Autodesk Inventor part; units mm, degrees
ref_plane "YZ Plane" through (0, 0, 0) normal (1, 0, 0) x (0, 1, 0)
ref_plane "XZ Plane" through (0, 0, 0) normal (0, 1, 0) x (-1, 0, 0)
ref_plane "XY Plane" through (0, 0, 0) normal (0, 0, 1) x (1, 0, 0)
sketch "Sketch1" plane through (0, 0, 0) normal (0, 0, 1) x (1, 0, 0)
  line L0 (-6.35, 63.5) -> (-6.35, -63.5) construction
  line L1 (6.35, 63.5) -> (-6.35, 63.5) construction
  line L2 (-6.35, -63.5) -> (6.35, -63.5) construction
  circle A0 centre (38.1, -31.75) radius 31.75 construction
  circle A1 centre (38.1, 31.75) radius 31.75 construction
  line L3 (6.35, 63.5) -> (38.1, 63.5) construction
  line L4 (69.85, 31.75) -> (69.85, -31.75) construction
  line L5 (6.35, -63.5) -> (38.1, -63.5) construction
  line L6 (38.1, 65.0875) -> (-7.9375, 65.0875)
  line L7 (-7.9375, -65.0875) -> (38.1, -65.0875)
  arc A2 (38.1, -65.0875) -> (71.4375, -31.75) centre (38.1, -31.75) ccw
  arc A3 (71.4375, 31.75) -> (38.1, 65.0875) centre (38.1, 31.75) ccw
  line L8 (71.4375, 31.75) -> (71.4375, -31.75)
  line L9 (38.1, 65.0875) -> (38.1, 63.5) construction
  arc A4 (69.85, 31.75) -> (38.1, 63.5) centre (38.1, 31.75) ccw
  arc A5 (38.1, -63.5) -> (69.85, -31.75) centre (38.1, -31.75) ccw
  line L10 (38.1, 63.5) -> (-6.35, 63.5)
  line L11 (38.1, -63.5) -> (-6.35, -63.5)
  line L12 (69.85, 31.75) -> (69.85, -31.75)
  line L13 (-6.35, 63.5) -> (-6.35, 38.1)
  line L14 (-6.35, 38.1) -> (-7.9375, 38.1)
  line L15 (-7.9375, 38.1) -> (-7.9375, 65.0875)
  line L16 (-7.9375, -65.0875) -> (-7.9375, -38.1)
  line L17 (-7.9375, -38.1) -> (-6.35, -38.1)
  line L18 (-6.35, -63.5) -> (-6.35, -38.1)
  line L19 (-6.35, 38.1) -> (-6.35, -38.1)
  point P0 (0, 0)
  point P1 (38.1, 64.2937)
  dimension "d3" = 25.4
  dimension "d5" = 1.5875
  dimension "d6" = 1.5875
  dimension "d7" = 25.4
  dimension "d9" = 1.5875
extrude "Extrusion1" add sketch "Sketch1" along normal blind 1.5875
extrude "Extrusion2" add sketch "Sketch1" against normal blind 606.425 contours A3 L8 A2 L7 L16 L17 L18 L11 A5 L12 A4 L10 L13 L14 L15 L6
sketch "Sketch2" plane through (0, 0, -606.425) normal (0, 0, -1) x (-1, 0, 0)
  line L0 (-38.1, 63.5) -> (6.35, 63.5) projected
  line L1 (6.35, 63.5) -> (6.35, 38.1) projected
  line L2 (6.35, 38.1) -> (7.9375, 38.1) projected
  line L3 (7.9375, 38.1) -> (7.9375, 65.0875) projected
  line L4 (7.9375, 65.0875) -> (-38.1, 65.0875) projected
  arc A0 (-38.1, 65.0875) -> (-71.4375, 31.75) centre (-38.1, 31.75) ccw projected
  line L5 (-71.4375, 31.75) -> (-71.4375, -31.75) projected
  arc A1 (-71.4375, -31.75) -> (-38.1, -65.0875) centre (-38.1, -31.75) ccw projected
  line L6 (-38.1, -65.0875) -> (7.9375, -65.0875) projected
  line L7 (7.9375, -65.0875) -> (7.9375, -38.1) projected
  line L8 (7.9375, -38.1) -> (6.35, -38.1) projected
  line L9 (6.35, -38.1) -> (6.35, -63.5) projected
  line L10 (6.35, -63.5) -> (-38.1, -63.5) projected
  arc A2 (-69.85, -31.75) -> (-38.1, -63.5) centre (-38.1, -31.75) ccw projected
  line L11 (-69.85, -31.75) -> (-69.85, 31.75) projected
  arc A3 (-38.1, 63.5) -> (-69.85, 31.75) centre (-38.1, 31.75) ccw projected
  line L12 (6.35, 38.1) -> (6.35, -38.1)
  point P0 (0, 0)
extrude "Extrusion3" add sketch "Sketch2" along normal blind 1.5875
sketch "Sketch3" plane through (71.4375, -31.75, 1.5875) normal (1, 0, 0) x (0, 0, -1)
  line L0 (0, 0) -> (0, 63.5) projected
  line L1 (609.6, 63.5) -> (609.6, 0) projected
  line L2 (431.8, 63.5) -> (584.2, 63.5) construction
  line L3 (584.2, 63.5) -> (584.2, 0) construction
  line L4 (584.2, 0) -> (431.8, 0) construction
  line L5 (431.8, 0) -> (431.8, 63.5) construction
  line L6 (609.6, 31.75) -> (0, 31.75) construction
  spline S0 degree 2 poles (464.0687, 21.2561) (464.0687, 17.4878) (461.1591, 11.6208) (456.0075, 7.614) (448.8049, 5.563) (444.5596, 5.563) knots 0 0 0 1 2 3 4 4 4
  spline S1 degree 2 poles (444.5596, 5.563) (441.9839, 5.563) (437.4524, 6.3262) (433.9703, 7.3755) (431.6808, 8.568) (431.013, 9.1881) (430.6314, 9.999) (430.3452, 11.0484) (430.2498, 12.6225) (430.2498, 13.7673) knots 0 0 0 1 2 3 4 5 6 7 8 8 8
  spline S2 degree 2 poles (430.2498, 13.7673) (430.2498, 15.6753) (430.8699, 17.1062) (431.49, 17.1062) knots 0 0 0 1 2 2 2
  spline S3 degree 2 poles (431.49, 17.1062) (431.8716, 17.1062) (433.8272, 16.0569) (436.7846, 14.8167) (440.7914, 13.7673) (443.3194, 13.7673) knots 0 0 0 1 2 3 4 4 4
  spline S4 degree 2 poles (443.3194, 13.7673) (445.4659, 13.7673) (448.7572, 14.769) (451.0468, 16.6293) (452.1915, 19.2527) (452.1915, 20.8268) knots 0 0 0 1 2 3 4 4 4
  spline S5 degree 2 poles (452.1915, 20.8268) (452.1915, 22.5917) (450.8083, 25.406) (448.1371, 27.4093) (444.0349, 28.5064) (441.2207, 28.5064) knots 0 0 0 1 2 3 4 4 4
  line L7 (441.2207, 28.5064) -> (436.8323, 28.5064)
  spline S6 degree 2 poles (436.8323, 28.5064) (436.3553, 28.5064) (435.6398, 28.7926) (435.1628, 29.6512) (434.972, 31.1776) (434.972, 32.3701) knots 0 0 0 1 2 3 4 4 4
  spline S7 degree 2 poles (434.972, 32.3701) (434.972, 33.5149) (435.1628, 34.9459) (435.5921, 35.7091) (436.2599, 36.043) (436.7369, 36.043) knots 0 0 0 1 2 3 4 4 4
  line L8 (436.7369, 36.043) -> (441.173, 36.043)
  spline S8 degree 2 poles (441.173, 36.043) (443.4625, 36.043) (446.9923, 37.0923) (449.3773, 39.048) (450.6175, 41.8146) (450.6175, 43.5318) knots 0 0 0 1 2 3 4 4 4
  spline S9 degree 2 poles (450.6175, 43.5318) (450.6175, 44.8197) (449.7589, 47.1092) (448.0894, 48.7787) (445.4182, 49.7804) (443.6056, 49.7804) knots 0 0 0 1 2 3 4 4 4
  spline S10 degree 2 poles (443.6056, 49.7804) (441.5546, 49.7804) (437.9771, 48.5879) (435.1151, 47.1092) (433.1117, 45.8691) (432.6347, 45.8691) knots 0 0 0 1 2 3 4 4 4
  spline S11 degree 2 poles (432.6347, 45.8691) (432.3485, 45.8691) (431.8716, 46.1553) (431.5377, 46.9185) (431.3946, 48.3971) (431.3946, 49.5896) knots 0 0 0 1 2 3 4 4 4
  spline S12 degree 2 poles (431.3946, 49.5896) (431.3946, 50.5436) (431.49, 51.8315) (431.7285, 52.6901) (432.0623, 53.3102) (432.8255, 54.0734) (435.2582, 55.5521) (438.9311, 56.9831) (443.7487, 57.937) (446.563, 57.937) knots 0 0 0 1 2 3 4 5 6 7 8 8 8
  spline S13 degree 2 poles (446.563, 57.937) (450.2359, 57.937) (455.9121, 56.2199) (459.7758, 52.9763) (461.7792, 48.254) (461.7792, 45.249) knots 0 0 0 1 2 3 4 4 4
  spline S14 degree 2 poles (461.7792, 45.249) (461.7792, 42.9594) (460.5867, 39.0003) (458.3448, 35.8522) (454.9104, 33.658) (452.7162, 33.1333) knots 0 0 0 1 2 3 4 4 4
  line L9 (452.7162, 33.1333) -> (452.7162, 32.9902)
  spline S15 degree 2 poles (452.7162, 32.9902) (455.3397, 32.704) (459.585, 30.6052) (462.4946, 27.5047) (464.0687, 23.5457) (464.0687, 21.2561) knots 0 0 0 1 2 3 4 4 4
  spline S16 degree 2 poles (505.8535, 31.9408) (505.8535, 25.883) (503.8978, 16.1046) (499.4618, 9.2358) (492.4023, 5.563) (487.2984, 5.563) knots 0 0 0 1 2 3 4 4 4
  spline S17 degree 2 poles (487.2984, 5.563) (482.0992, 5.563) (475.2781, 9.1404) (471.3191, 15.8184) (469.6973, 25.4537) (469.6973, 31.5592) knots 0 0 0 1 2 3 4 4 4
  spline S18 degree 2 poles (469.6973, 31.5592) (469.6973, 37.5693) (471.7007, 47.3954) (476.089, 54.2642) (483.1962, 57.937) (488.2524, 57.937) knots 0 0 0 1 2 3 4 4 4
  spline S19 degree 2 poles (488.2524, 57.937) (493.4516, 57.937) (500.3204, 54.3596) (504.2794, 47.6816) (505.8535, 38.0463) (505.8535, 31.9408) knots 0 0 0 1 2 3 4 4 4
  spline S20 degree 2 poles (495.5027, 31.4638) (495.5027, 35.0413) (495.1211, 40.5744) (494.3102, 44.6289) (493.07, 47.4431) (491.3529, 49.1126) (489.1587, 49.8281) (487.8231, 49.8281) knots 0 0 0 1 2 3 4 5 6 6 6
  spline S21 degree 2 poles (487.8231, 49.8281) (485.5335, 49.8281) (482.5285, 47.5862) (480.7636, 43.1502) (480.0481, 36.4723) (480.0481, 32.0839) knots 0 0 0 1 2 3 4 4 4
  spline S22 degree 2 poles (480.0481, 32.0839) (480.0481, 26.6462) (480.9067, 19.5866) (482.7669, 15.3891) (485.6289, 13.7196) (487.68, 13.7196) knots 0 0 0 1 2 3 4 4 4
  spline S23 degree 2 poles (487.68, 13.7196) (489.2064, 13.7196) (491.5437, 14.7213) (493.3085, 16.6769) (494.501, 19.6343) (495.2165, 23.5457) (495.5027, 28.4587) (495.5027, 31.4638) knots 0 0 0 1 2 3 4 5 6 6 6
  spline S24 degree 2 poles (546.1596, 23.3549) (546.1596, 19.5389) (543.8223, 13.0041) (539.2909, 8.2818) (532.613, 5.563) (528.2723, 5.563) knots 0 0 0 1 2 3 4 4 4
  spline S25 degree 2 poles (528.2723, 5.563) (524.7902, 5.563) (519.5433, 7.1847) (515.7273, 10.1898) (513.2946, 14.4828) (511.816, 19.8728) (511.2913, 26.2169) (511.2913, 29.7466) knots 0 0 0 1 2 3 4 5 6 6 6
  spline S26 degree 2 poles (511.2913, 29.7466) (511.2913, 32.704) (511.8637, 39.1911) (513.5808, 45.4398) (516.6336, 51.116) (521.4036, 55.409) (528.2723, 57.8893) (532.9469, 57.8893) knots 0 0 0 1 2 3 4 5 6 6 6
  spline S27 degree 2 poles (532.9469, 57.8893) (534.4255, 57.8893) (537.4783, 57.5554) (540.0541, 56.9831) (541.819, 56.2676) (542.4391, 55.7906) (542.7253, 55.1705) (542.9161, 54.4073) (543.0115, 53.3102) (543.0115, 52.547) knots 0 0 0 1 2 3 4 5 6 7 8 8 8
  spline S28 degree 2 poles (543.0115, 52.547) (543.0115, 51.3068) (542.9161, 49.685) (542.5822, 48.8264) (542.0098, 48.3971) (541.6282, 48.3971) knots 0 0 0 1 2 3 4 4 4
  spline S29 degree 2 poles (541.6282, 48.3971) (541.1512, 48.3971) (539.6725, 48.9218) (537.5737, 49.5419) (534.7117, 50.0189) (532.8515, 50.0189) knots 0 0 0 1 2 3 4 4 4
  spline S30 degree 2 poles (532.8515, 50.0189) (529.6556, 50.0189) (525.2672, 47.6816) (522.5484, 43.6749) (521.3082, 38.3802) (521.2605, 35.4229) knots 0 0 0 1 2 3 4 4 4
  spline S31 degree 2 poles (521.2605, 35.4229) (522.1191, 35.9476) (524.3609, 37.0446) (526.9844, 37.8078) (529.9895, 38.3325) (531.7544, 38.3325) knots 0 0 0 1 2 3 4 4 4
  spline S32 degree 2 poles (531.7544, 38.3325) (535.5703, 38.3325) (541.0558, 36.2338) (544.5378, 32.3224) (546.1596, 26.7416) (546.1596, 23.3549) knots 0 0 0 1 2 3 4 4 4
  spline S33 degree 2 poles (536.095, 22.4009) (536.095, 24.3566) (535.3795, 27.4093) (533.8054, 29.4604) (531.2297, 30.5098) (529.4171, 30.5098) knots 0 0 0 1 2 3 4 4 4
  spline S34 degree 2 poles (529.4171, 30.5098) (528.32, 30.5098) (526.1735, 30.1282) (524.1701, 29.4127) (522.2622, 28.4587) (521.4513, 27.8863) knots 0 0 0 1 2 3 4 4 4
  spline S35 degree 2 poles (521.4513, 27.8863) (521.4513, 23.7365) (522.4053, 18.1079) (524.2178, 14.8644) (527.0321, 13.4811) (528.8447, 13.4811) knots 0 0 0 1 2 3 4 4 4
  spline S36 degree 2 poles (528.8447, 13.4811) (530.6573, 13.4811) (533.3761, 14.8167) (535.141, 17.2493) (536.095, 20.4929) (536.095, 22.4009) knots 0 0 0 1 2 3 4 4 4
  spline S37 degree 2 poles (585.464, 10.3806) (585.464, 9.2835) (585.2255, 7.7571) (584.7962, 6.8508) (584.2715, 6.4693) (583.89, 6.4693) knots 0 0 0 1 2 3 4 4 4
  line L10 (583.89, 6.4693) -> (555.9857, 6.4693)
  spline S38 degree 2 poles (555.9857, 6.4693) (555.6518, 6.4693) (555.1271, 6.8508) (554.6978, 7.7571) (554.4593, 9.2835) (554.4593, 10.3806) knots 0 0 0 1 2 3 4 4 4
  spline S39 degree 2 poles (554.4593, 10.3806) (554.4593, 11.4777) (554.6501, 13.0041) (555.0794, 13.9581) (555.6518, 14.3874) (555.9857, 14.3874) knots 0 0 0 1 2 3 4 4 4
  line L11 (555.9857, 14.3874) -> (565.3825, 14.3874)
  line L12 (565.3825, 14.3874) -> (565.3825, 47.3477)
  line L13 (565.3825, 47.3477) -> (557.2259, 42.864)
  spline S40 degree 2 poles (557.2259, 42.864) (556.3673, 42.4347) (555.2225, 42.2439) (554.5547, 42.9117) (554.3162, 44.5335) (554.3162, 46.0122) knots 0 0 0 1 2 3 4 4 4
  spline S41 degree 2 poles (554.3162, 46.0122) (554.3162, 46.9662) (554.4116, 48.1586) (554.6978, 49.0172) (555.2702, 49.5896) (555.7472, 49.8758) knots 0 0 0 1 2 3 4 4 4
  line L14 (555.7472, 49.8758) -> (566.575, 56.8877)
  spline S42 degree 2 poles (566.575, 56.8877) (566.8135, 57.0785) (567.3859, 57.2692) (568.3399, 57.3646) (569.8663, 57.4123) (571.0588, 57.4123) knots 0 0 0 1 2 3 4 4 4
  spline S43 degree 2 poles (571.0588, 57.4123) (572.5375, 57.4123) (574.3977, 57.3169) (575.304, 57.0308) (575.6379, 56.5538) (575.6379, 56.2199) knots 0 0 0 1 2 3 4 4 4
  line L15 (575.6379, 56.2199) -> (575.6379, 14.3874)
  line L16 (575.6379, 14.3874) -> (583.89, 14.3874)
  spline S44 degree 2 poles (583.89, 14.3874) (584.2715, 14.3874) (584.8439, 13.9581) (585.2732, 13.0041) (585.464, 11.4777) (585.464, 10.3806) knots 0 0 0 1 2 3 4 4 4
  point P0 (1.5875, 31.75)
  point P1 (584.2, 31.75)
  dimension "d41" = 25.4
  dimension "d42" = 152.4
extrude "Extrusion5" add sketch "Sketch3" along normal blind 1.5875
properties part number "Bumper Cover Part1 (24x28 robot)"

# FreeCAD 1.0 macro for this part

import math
import FreeCAD as App
import Part
import Sketcher
Q = App.Units.Quantity

doc = App.newDocument("Part")
body = doc.addObject("PartDesign::Body", "Body")

sketch1 = body.newObject("Sketcher::SketchObject", "Sketch")
sketch1.AttachmentSupport = (doc.getObject("XY_Plane"), [""])
sketch1.MapMode = "FlatFace"
sketch1.addGeometry(Part.ArcOfCircle(Part.Circle(App.Vector(38.1, 31.75, 0), App.Vector(0, 0, 1), 33.3375), math.radians(0), math.radians(90)), False)
sketch1.addGeometry(Part.LineSegment(App.Vector(38.1, 65.0875, 0), App.Vector(-7.9375, 65.0875, 0)), False)
sketch1.addGeometry(Part.LineSegment(App.Vector(-7.9375, 65.0875, 0), App.Vector(-7.9375, 38.1, 0)), False)
sketch1.addGeometry(Part.LineSegment(App.Vector(-7.9375, 38.1, 0), App.Vector(-6.35, 38.1, 0)), False)
sketch1.addGeometry(Part.LineSegment(App.Vector(-6.35, 38.1, 0), App.Vector(-6.35, -38.1, 0)), False)
sketch1.addGeometry(Part.LineSegment(App.Vector(-6.35, -38.1, 0), App.Vector(-7.9375, -38.1, 0)), False)
sketch1.addGeometry(Part.LineSegment(App.Vector(-7.9375, -38.1, 0), App.Vector(-7.9375, -65.0875, 0)), False)
sketch1.addGeometry(Part.LineSegment(App.Vector(-7.9375, -65.0875, 0), App.Vector(38.1, -65.0875, 0)), False)
sketch1.addGeometry(Part.ArcOfCircle(Part.Circle(App.Vector(38.1, -31.75, 0), App.Vector(0, 0, 1), 33.3375), math.radians(-90), math.radians(0)), False)
sketch1.addGeometry(Part.LineSegment(App.Vector(71.4375, -31.75, 0), App.Vector(71.4375, 31.75, 0)), False)
sketch1.addConstraint(Sketcher.Constraint("Tangent", 0, 2, 1, 1))
sketch1.addConstraint(Sketcher.Constraint("Coincident", 1, 2, 2, 1))
sketch1.addConstraint(Sketcher.Constraint("Coincident", 2, 2, 3, 1))
sketch1.addConstraint(Sketcher.Constraint("Coincident", 3, 2, 4, 1))
sketch1.addConstraint(Sketcher.Constraint("Coincident", 4, 2, 5, 1))
sketch1.addConstraint(Sketcher.Constraint("Coincident", 5, 2, 6, 1))
sketch1.addConstraint(Sketcher.Constraint("Coincident", 6, 2, 7, 1))
sketch1.addConstraint(Sketcher.Constraint("Tangent", 7, 2, 8, 1))
sketch1.addConstraint(Sketcher.Constraint("Tangent", 8, 2, 9, 1))
sketch1.addConstraint(Sketcher.Constraint("Tangent", 9, 2, 0, 1))
sketch1.addConstraint(Sketcher.Constraint("Horizontal", 1))
sketch1.addConstraint(Sketcher.Constraint("Vertical", 2))
sketch1.addConstraint(Sketcher.Constraint("Horizontal", 3))
sketch1.addConstraint(Sketcher.Constraint("Vertical", 4))
sketch1.addConstraint(Sketcher.Constraint("Horizontal", 5))
sketch1.addConstraint(Sketcher.Constraint("Vertical", 6))
sketch1.addConstraint(Sketcher.Constraint("Horizontal", 7))
sketch1.addConstraint(Sketcher.Constraint("Vertical", 9))
sketch1.addConstraint(Sketcher.Constraint("Equal", 0, 8))
sketch1.addConstraint(Sketcher.Constraint("Symmetric", 2, 2, 5, 2, -1))
sketch1.addConstraint(Sketcher.Constraint("Equal", 2, 6))
sketch1.addConstraint(Sketcher.Constraint("DistanceX", 3, 1, 3, 2, Q("0.0625 in")))
sketch1.addConstraint(Sketcher.Constraint("DistanceY", 4, 2, 4, 1, Q("3 in")))
sketch1.addConstraint(Sketcher.Constraint("DistanceY", 9, 1, 9, 2, Q("2.5 in")))
sketch1.addConstraint(Sketcher.Constraint("Radius", 0, Q("1.3125 in")))
sketch1.addConstraint(Sketcher.Constraint("DistanceX", -1, 1, 0, 3, Q("1.5 in")))
sketch1.addConstraint(Sketcher.Constraint("DistanceX", 1, 2, 1, 1, Q("1.8125 in")))
pad1 = body.newObject("PartDesign::Pad", "Pad")
pad1.Profile = sketch1
pad1.Length = Q("0.0625 in")

sketch2 = body.newObject("Sketcher::SketchObject", "Sketch001")
sketch2.AttachmentSupport = (doc.getObject("XY_Plane"), [""])
sketch2.MapMode = "FlatFace"
sketch2.addGeometry(Part.ArcOfCircle(Part.Circle(App.Vector(38.1, 31.75, 0), App.Vector(0, 0, 1), 33.3375), math.radians(0), math.radians(90)), False)
sketch2.addGeometry(Part.LineSegment(App.Vector(38.1, 65.0875, 0), App.Vector(-7.9375, 65.0875, 0)), False)
sketch2.addGeometry(Part.LineSegment(App.Vector(-7.9375, 65.0875, 0), App.Vector(-7.9375, 38.1, 0)), False)
sketch2.addGeometry(Part.LineSegment(App.Vector(-7.9375, 38.1, 0), App.Vector(-6.35, 38.1, 0)), False)
sketch2.addGeometry(Part.LineSegment(App.Vector(-6.35, 38.1, 0), App.Vector(-6.35, 63.5, 0)), False)
sketch2.addGeometry(Part.LineSegment(App.Vector(-6.35, 63.5, 0), App.Vector(38.1, 63.5, 0)), False)
sketch2.addGeometry(Part.ArcOfCircle(Part.Circle(App.Vector(38.1, 31.75, 0), App.Vector(0, 0, 1), 31.75), math.radians(0), math.radians(90)), False)
sketch2.addGeometry(Part.LineSegment(App.Vector(69.85, 31.75, 0), App.Vector(69.85, -31.75, 0)), False)
sketch2.addGeometry(Part.ArcOfCircle(Part.Circle(App.Vector(38.1, -31.75, 0), App.Vector(0, 0, 1), 31.75), math.radians(-90), math.radians(0)), False)
sketch2.addGeometry(Part.LineSegment(App.Vector(38.1, -63.5, 0), App.Vector(-6.35, -63.5, 0)), False)
sketch2.addGeometry(Part.LineSegment(App.Vector(-6.35, -63.5, 0), App.Vector(-6.35, -38.1, 0)), False)
sketch2.addGeometry(Part.LineSegment(App.Vector(-6.35, -38.1, 0), App.Vector(-7.9375, -38.1, 0)), False)
sketch2.addGeometry(Part.LineSegment(App.Vector(-7.9375, -38.1, 0), App.Vector(-7.9375, -65.0875, 0)), False)
sketch2.addGeometry(Part.LineSegment(App.Vector(-7.9375, -65.0875, 0), App.Vector(38.1, -65.0875, 0)), False)
sketch2.addGeometry(Part.ArcOfCircle(Part.Circle(App.Vector(38.1, -31.75, 0), App.Vector(0, 0, 1), 33.3375), math.radians(-90), math.radians(0)), False)
sketch2.addGeometry(Part.LineSegment(App.Vector(71.4375, -31.75, 0), App.Vector(71.4375, 31.75, 0)), False)
sketch2.addConstraint(Sketcher.Constraint("Tangent", 0, 2, 1, 1))
sketch2.addConstraint(Sketcher.Constraint("Coincident", 1, 2, 2, 1))
sketch2.addConstraint(Sketcher.Constraint("Coincident", 2, 2, 3, 1))
sketch2.addConstraint(Sketcher.Constraint("Coincident", 3, 2, 4, 1))
sketch2.addConstraint(Sketcher.Constraint("Coincident", 4, 2, 5, 1))
sketch2.addConstraint(Sketcher.Constraint("Tangent", 5, 2, 6, 2))
sketch2.addConstraint(Sketcher.Constraint("Tangent", 6, 1, 7, 1))
sketch2.addConstraint(Sketcher.Constraint("Tangent", 7, 2, 8, 2))
sketch2.addConstraint(Sketcher.Constraint("Tangent", 8, 1, 9, 1))
sketch2.addConstraint(Sketcher.Constraint("Coincident", 9, 2, 10, 1))
sketch2.addConstraint(Sketcher.Constraint("Coincident", 10, 2, 11, 1))
sketch2.addConstraint(Sketcher.Constraint("Coincident", 11, 2, 12, 1))
sketch2.addConstraint(Sketcher.Constraint("Coincident", 12, 2, 13, 1))
sketch2.addConstraint(Sketcher.Constraint("Tangent", 13, 2, 14, 1))
sketch2.addConstraint(Sketcher.Constraint("Tangent", 14, 2, 15, 1))
sketch2.addConstraint(Sketcher.Constraint("Tangent", 15, 2, 0, 1))
sketch2.addConstraint(Sketcher.Constraint("Horizontal", 1))
sketch2.addConstraint(Sketcher.Constraint("Vertical", 2))
sketch2.addConstraint(Sketcher.Constraint("Horizontal", 3))
sketch2.addConstraint(Sketcher.Constraint("Vertical", 4))
sketch2.addConstraint(Sketcher.Constraint("Horizontal", 5))
sketch2.addConstraint(Sketcher.Constraint("Vertical", 7))
sketch2.addConstraint(Sketcher.Constraint("Horizontal", 9))
sketch2.addConstraint(Sketcher.Constraint("Vertical", 10))
sketch2.addConstraint(Sketcher.Constraint("Horizontal", 11))
sketch2.addConstraint(Sketcher.Constraint("Vertical", 12))
sketch2.addConstraint(Sketcher.Constraint("Horizontal", 13))
sketch2.addConstraint(Sketcher.Constraint("Vertical", 15))
sketch2.addConstraint(Sketcher.Constraint("Coincident", 6, 3, 0, 3))
sketch2.addConstraint(Sketcher.Constraint("Coincident", 14, 3, 8, 3))
sketch2.addConstraint(Sketcher.Constraint("Equal", 6, 8))
sketch2.addConstraint(Sketcher.Constraint("Symmetric", 4, 2, 9, 2, -1))
sketch2.addConstraint(Sketcher.Constraint("Symmetric", 2, 2, 11, 2, -1))
sketch2.addConstraint(Sketcher.Constraint("DistanceY", 4, 1, 4, 2, Q("1 in")))
sketch2.addConstraint(Sketcher.Constraint("DistanceX", 3, 1, 3, 2, Q("0.0625 in")))
sketch2.addConstraint(Sketcher.Constraint("Radius", 6, Q("1.25 in")))
sketch2.addConstraint(Sketcher.Constraint("DistanceY", 7, 2, 7, 1, Q("2.5 in")))
sketch2.addConstraint(Sketcher.Constraint("Radius", 0, Q("1.3125 in")))
sketch2.addConstraint(Sketcher.Constraint("DistanceX", 9, 2, 7, 2, Q("3 in")))
sketch2.addConstraint(Sketcher.Constraint("DistanceX", -1, 1, 0, 3, Q("1.5 in")))
pad2 = body.newObject("PartDesign::Pad", "Pad001")
pad2.Profile = sketch2
pad2.Length = Q("23.875 in")
pad2.Reversed = True

sketch3 = body.newObject("Sketcher::SketchObject", "Sketch002")
sketch3.AttachmentSupport = (doc.getObject("XY_Plane"), [""])
sketch3.MapMode = "FlatFace"
sketch3.AttachmentOffset = App.Placement(App.Vector(0, 0, -23.875 * 25.4), App.Rotation())
sketch3.addGeometry(Part.LineSegment(App.Vector(-7.9375, -38.1, 0), App.Vector(-6.35, -38.1, 0)), False)
sketch3.addGeometry(Part.LineSegment(App.Vector(-6.35, -38.1, 0), App.Vector(-6.35, 38.1, 0)), False)
sketch3.addGeometry(Part.LineSegment(App.Vector(-6.35, 38.1, 0), App.Vector(-7.9375, 38.1, 0)), False)
sketch3.addGeometry(Part.LineSegment(App.Vector(-7.9375, 38.1, 0), App.Vector(-7.9375, 65.0875, 0)), False)
sketch3.addGeometry(Part.LineSegment(App.Vector(-7.9375, 65.0875, 0), App.Vector(38.1, 65.0875, 0)), False)
sketch3.addGeometry(Part.ArcOfCircle(Part.Circle(App.Vector(38.1, 31.75, 0), App.Vector(0, 0, 1), 33.3375), math.radians(0), math.radians(90)), False)
sketch3.addGeometry(Part.LineSegment(App.Vector(71.4375, 31.75, 0), App.Vector(71.4375, -31.75, 0)), False)
sketch3.addGeometry(Part.ArcOfCircle(Part.Circle(App.Vector(38.1, -31.75, 0), App.Vector(0, 0, 1), 33.3375), math.radians(-90), math.radians(0)), False)
sketch3.addGeometry(Part.LineSegment(App.Vector(38.1, -65.0875, 0), App.Vector(-7.9375, -65.0875, 0)), False)
sketch3.addGeometry(Part.LineSegment(App.Vector(-7.9375, -65.0875, 0), App.Vector(-7.9375, -38.1, 0)), False)
sketch3.addConstraint(Sketcher.Constraint("Coincident", 0, 2, 1, 1))
sketch3.addConstraint(Sketcher.Constraint("Coincident", 1, 2, 2, 1))
sketch3.addConstraint(Sketcher.Constraint("Coincident", 2, 2, 3, 1))
sketch3.addConstraint(Sketcher.Constraint("Coincident", 3, 2, 4, 1))
sketch3.addConstraint(Sketcher.Constraint("Tangent", 4, 2, 5, 2))
sketch3.addConstraint(Sketcher.Constraint("Tangent", 5, 1, 6, 1))
sketch3.addConstraint(Sketcher.Constraint("Tangent", 6, 2, 7, 2))
sketch3.addConstraint(Sketcher.Constraint("Tangent", 7, 1, 8, 1))
sketch3.addConstraint(Sketcher.Constraint("Coincident", 8, 2, 9, 1))
sketch3.addConstraint(Sketcher.Constraint("Coincident", 9, 2, 0, 1))
sketch3.addConstraint(Sketcher.Constraint("Horizontal", 0))
sketch3.addConstraint(Sketcher.Constraint("Vertical", 1))
sketch3.addConstraint(Sketcher.Constraint("Horizontal", 2))
sketch3.addConstraint(Sketcher.Constraint("Vertical", 3))
sketch3.addConstraint(Sketcher.Constraint("Horizontal", 4))
sketch3.addConstraint(Sketcher.Constraint("Vertical", 6))
sketch3.addConstraint(Sketcher.Constraint("Horizontal", 8))
sketch3.addConstraint(Sketcher.Constraint("Vertical", 9))
sketch3.addConstraint(Sketcher.Constraint("Equal", 5, 7))
sketch3.addConstraint(Sketcher.Constraint("Symmetric", 3, 2, 8, 2, -1))
sketch3.addConstraint(Sketcher.Constraint("Equal", 3, 9))
sketch3.addConstraint(Sketcher.Constraint("DistanceY", 1, 1, 1, 2, Q("3 in")))
sketch3.addConstraint(Sketcher.Constraint("DistanceY", 6, 2, 6, 1, Q("2.5 in")))
sketch3.addConstraint(Sketcher.Constraint("Radius", 5, Q("1.3125 in")))
sketch3.addConstraint(Sketcher.Constraint("DistanceX", -1, 1, 5, 3, Q("1.5 in")))
sketch3.addConstraint(Sketcher.Constraint("DistanceX", 0, 1, 0, 2, Q("0.0625 in")))
sketch3.addConstraint(Sketcher.Constraint("DistanceX", 4, 1, 4, 2, Q("1.8125 in")))
pad3 = body.newObject("PartDesign::Pad", "Pad002")
pad3.Profile = sketch3
pad3.Length = Q("0.0625 in")
pad3.Reversed = True

sketch4 = body.newObject("Sketcher::SketchObject", "Sketch003")
sketch4.AttachmentSupport = (doc.getObject("YZ_Plane"), [""])
sketch4.MapMode = "FlatFace"
sketch4.AttachmentOffset = App.Placement(App.Vector(0, 0, 2.8125 * 25.4), App.Rotation())
sketch4.addGeometry(Part.BSplineCurve([App.Vector(-10.4939, -462.4812, 0), App.Vector(-14.2622, -462.4812, 0), App.Vector(-20.1292, -459.5716, 0), App.Vector(-24.136, -454.42, 0), App.Vector(-26.187, -447.2174, 0), App.Vector(-26.187, -442.9721, 0)], [3, 1, 1, 1, 3], [0, 1, 2, 3, 4], False, 2, [1, 1, 1, 1, 1, 1], False), False)
sketch4.addGeometry(Part.BSplineCurve([App.Vector(1.2402, -451.1287, 0), App.Vector(0.954, -453.7522, 0), App.Vector(-1.1448, -457.9975, 0), App.Vector(-4.2453, -460.9071, 0), App.Vector(-8.2043, -462.4812, 0), App.Vector(-10.4939, -462.4812, 0)], [3, 1, 1, 1, 3], [0, 1, 2, 3, 4], False, 2, [1, 1, 1, 1, 1, 1], False), False)
sketch4.addGeometry(Part.LineSegment(App.Vector(1.2402, -451.1287, 0), App.Vector(1.3833, -451.1287, 0)), False)
sketch4.addGeometry(Part.BSplineCurve([App.Vector(13.499, -460.1917, 0), App.Vector(11.2094, -460.1917, 0), App.Vector(7.2503, -458.9992, 0), App.Vector(4.1022, -456.7573, 0), App.Vector(1.908, -453.3229, 0), App.Vector(1.3833, -451.1287, 0)], [3, 1, 1, 1, 3], [0, 1, 2, 3, 4], False, 2, [1, 1, 1, 1, 1, 1], False), False)
sketch4.addGeometry(Part.BSplineCurve([App.Vector(26.187, -444.9755, 0), App.Vector(26.187, -448.6484, 0), App.Vector(24.4699, -454.3246, 0), App.Vector(21.2263, -458.1883, 0), App.Vector(16.504, -460.1917, 0), App.Vector(13.499, -460.1917, 0)], [3, 1, 1, 1, 3], [0, 1, 2, 3, 4], False, 2, [1, 1, 1, 1, 1, 1], False), False)
sketch4.addGeometry(Part.BSplineCurve([App.Vector(17.8396, -429.8071, 0), App.Vector(18.7936, -429.8071, 0), App.Vector(20.0815, -429.9025, 0), App.Vector(20.9401, -430.141, 0), App.Vector(21.5602, -430.4748, 0), App.Vector(22.3234, -431.238, 0), App.Vector(23.8021, -433.6707, 0), App.Vector(25.2331, -437.3436, 0), App.Vector(26.187, -442.1612, 0), App.Vector(26.187, -444.9755, 0)], [3, 1, 1, 1, 1, 1, 1, 1, 3], [0, 1, 2, 3, 4, 5, 6, 7, 8], False, 2, [1, 1, 1, 1, 1, 1, 1, 1, 1, 1], False), False)
sketch4.addGeometry(Part.BSplineCurve([App.Vector(14.1191, -431.0472, 0), App.Vector(14.1191, -430.761, 0), App.Vector(14.4053, -430.2841, 0), App.Vector(15.1685, -429.9502, 0), App.Vector(16.6471, -429.8071, 0), App.Vector(17.8396, -429.8071, 0)], [3, 1, 1, 1, 3], [0, 1, 2, 3, 4], False, 2, [1, 1, 1, 1, 1, 1], False), False)
sketch4.addGeometry(Part.BSplineCurve([App.Vector(18.0304, -442.0181, 0), App.Vector(18.0304, -439.9671, 0), App.Vector(16.8379, -436.3896, 0), App.Vector(15.3592, -433.5276, 0), App.Vector(14.1191, -431.5242, 0), App.Vector(14.1191, -431.0472, 0)], [3, 1, 1, 1, 3], [0, 1, 2, 3, 4], False, 2, [1, 1, 1, 1, 1, 1], False), False)
sketch4.addGeometry(Part.BSplineCurve([App.Vector(11.7818, -449.03, 0), App.Vector(13.0697, -449.03, 0), App.Vector(15.3592, -448.1714, 0), App.Vector(17.0287, -446.5019, 0), App.Vector(18.0304, -443.8307, 0), App.Vector(18.0304, -442.0181, 0)], [3, 1, 1, 1, 3], [0, 1, 2, 3, 4], False, 2, [1, 1, 1, 1, 1, 1], False), False)
sketch4.addGeometry(Part.BSplineCurve([App.Vector(4.293, -439.5855, 0), App.Vector(4.293, -441.875, 0), App.Vector(5.3423, -445.4048, 0), App.Vector(7.298, -447.7898, 0), App.Vector(10.0646, -449.03, 0), App.Vector(11.7818, -449.03, 0)], [3, 1, 1, 1, 3], [0, 1, 2, 3, 4], False, 2, [1, 1, 1, 1, 1, 1], False), False)
sketch4.addGeometry(Part.LineSegment(App.Vector(4.293, -439.5855, 0), App.Vector(4.293, -435.1494, 0)), False)
sketch4.addGeometry(Part.BSplineCurve([App.Vector(0.6201, -433.3845, 0), App.Vector(1.7649, -433.3845, 0), App.Vector(3.1959, -433.5753, 0), App.Vector(3.9591, -434.0046, 0), App.Vector(4.293, -434.6724, 0), App.Vector(4.293, -435.1494, 0)], [3, 1, 1, 1, 3], [0, 1, 2, 3, 4], False, 2, [1, 1, 1, 1, 1, 1], False), False)
sketch4.addGeometry(Part.BSplineCurve([App.Vector(-3.2436, -435.2448, 0), App.Vector(-3.2436, -434.7678, 0), App.Vector(-2.9574, -434.0523, 0), App.Vector(-2.0988, -433.5753, 0), App.Vector(-0.5724, -433.3845, 0), App.Vector(0.6201, -433.3845, 0)], [3, 1, 1, 1, 3], [0, 1, 2, 3, 4], False, 2, [1, 1, 1, 1, 1, 1], False), False)
sketch4.addGeometry(Part.LineSegment(App.Vector(-3.2436, -435.2448, 0), App.Vector(-3.2436, -439.6332, 0)), False)
sketch4.addGeometry(Part.BSplineCurve([App.Vector(-10.9232, -450.604, 0), App.Vector(-9.1583, -450.604, 0), App.Vector(-6.344, -449.2208, 0), App.Vector(-4.3407, -446.5496, 0), App.Vector(-3.2436, -442.4474, 0), App.Vector(-3.2436, -439.6332, 0)], [3, 1, 1, 1, 3], [0, 1, 2, 3, 4], False, 2, [1, 1, 1, 1, 1, 1], False), False)
sketch4.addGeometry(Part.BSplineCurve([App.Vector(-17.9827, -441.7319, 0), App.Vector(-17.9827, -443.8784, 0), App.Vector(-16.981, -447.1697, 0), App.Vector(-15.1207, -449.4593, 0), App.Vector(-12.4973, -450.604, 0), App.Vector(-10.9232, -450.604, 0)], [3, 1, 1, 1, 3], [0, 1, 2, 3, 4], False, 2, [1, 1, 1, 1, 1, 1], False), False)
sketch4.addGeometry(Part.BSplineCurve([App.Vector(-14.6438, -429.9025, 0), App.Vector(-14.6438, -430.2841, 0), App.Vector(-15.6931, -432.2397, 0), App.Vector(-16.9333, -435.1971, 0), App.Vector(-17.9827, -439.2039, 0), App.Vector(-17.9827, -441.7319, 0)], [3, 1, 1, 1, 3], [0, 1, 2, 3, 4], False, 2, [1, 1, 1, 1, 1, 1], False), False)
sketch4.addGeometry(Part.BSplineCurve([App.Vector(-17.9827, -428.6623, 0), App.Vector(-16.0747, -428.6623, 0), App.Vector(-14.6438, -429.2824, 0), App.Vector(-14.6438, -429.9025, 0)], [3, 1, 3], [0, 1, 2], False, 2, [1, 1, 1, 1], False), False)
sketch4.addGeometry(Part.BSplineCurve([App.Vector(-26.187, -442.9721, 0), App.Vector(-26.187, -440.3964, 0), App.Vector(-25.4238, -435.8649, 0), App.Vector(-24.3745, -432.3828, 0), App.Vector(-23.182, -430.0933, 0), App.Vector(-22.5619, -429.4255, 0), App.Vector(-21.751, -429.0439, 0), App.Vector(-20.7016, -428.7577, 0), App.Vector(-19.1275, -428.6623, 0), App.Vector(-17.9827, -428.6623, 0)], [3, 1, 1, 1, 1, 1, 1, 1, 3], [0, 1, 2, 3, 4, 5, 6, 7, 8], False, 2, [1, 1, 1, 1, 1, 1, 1, 1, 1, 1], False), False)
sketch4.addGeometry(Part.BSplineCurve([App.Vector(0.1908, -504.266, 0), App.Vector(-5.867, -504.266, 0), App.Vector(-15.6454, -502.3103, 0), App.Vector(-22.5142, -497.8743, 0), App.Vector(-26.187, -490.8148, 0), App.Vector(-26.187, -485.7109, 0)], [3, 1, 1, 1, 3], [0, 1, 2, 3, 4], False, 2, [1, 1, 1, 1, 1, 1], False), False)
sketch4.addGeometry(Part.BSplineCurve([App.Vector(26.187, -486.6649, 0), App.Vector(26.187, -491.8641, 0), App.Vector(22.6096, -498.7329, 0), App.Vector(15.9316, -502.6919, 0), App.Vector(6.2963, -504.266, 0), App.Vector(0.1908, -504.266, 0)], [3, 1, 1, 1, 3], [0, 1, 2, 3, 4], False, 2, [1, 1, 1, 1, 1, 1], False), False)
sketch4.addGeometry(Part.BSplineCurve([App.Vector(-0.1908, -468.1098, 0), App.Vector(5.8193, -468.1098, 0), App.Vector(15.6454, -470.1132, 0), App.Vector(22.5142, -474.5015, 0), App.Vector(26.187, -481.6087, 0), App.Vector(26.187, -486.6649, 0)], [3, 1, 1, 1, 3], [0, 1, 2, 3, 4], False, 2, [1, 1, 1, 1, 1, 1], False), False)
sketch4.addGeometry(Part.BSplineCurve([App.Vector(-26.187, -485.7109, 0), App.Vector(-26.187, -480.5117, 0), App.Vector(-22.6096, -473.6906, 0), App.Vector(-15.9316, -469.7316, 0), App.Vector(-6.2963, -468.1098, 0), App.Vector(-0.1908, -468.1098, 0)], [3, 1, 1, 1, 3], [0, 1, 2, 3, 4], False, 2, [1, 1, 1, 1, 1, 1], False), False)
sketch4.addGeometry(Part.BSplineCurve([App.Vector(-0.2862, -493.9152, 0), App.Vector(3.2913, -493.9152, 0), App.Vector(8.8244, -493.5336, 0), App.Vector(12.8789, -492.7227, 0), App.Vector(15.6931, -491.4825, 0), App.Vector(17.3626, -489.7654, 0), App.Vector(18.0781, -487.5712, 0), App.Vector(18.0781, -486.2356, 0)], [3, 1, 1, 1, 1, 1, 3], [0, 1, 2, 3, 4, 5, 6], False, 2, [1, 1, 1, 1, 1, 1, 1, 1], False), False)
sketch4.addGeometry(Part.BSplineCurve([App.Vector(-18.0304, -486.0925, 0), App.Vector(-18.0304, -487.6189, 0), App.Vector(-17.0287, -489.9562, 0), App.Vector(-15.0731, -491.721, 0), App.Vector(-12.1157, -492.9135, 0), App.Vector(-8.2043, -493.629, 0), App.Vector(-3.2913, -493.9152, 0), App.Vector(-0.2862, -493.9152, 0)], [3, 1, 1, 1, 1, 1, 3], [0, 1, 2, 3, 4, 5, 6], False, 2, [1, 1, 1, 1, 1, 1, 1, 1], False), False)
sketch4.addGeometry(Part.BSplineCurve([App.Vector(0.3339, -478.4606, 0), App.Vector(-5.1038, -478.4606, 0), App.Vector(-12.1634, -479.3192, 0), App.Vector(-16.3609, -481.1794, 0), App.Vector(-18.0304, -484.0414, 0), App.Vector(-18.0304, -486.0925, 0)], [3, 1, 1, 1, 3], [0, 1, 2, 3, 4], False, 2, [1, 1, 1, 1, 1, 1], False), False)
sketch4.addGeometry(Part.BSplineCurve([App.Vector(18.0781, -486.2356, 0), App.Vector(18.0781, -483.946, 0), App.Vector(15.8362, -480.941, 0), App.Vector(11.4002, -479.1761, 0), App.Vector(4.7223, -478.4606, 0), App.Vector(0.3339, -478.4606, 0)], [3, 1, 1, 1, 3], [0, 1, 2, 3, 4], False, 2, [1, 1, 1, 1, 1, 1], False), False)
sketch4.addGeometry(Part.BSplineCurve([App.Vector(-8.3951, -544.5721, 0), App.Vector(-12.2111, -544.5721, 0), App.Vector(-18.7459, -542.2348, 0), App.Vector(-23.4682, -537.7034, 0), App.Vector(-26.187, -531.0255, 0), App.Vector(-26.187, -526.6848, 0)], [3, 1, 1, 1, 3], [0, 1, 2, 3, 4], False, 2, [1, 1, 1, 1, 1, 1], False), False)
sketch4.addGeometry(Part.BSplineCurve([App.Vector(6.5825, -530.1669, 0), App.Vector(6.5825, -533.9828, 0), App.Vector(4.4838, -539.4683, 0), App.Vector(0.5724, -542.9503, 0), App.Vector(-5.0084, -544.5721, 0), App.Vector(-8.3951, -544.5721, 0)], [3, 1, 1, 1, 3], [0, 1, 2, 3, 4], False, 2, [1, 1, 1, 1, 1, 1], False), False)
sketch4.addGeometry(Part.BSplineCurve([App.Vector(3.6729, -519.673, 0), App.Vector(4.1976, -520.5316, 0), App.Vector(5.2946, -522.7734, 0), App.Vector(6.0578, -525.3969, 0), App.Vector(6.5825, -528.402, 0), App.Vector(6.5825, -530.1669, 0)], [3, 1, 1, 1, 3], [0, 1, 2, 3, 4], False, 2, [1, 1, 1, 1, 1, 1], False), False)
sketch4.addGeometry(Part.BSplineCurve([App.Vector(18.2689, -531.264, 0), App.Vector(18.2689, -528.0681, 0), App.Vector(15.9316, -523.6797, 0), App.Vector(11.9249, -520.9609, 0), App.Vector(6.6302, -519.7207, 0), App.Vector(3.6729, -519.673, 0)], [3, 1, 1, 1, 3], [0, 1, 2, 3, 4], False, 2, [1, 1, 1, 1, 1, 1], False), False)
sketch4.addGeometry(Part.BSplineCurve([App.Vector(16.6471, -540.0407, 0), App.Vector(16.6471, -539.5637, 0), App.Vector(17.1718, -538.085, 0), App.Vector(17.7919, -535.9862, 0), App.Vector(18.2689, -533.1242, 0), App.Vector(18.2689, -531.264, 0)], [3, 1, 1, 1, 3], [0, 1, 2, 3, 4], False, 2, [1, 1, 1, 1, 1, 1], False), False)
sketch4.addGeometry(Part.BSplineCurve([App.Vector(20.797, -541.424, 0), App.Vector(19.5568, -541.424, 0), App.Vector(17.935, -541.3286, 0), App.Vector(17.0764, -540.9947, 0), App.Vector(16.6471, -540.4223, 0), App.Vector(16.6471, -540.0407, 0)], [3, 1, 1, 1, 3], [0, 1, 2, 3, 4], False, 2, [1, 1, 1, 1, 1, 1], False), False)
sketch4.addGeometry(Part.BSplineCurve([App.Vector(26.1393, -531.3594, 0), App.Vector(26.1393, -532.838, 0), App.Vector(25.8054, -535.8908, 0), App.Vector(25.2331, -538.4666, 0), App.Vector(24.5176, -540.2315, 0), App.Vector(24.0406, -540.8516, 0), App.Vector(23.4205, -541.1378, 0), App.Vector(22.6573, -541.3286, 0), App.Vector(21.5602, -541.424, 0), App.Vector(20.797, -541.424, 0)], [3, 1, 1, 1, 1, 1, 1, 1, 3], [0, 1, 2, 3, 4, 5, 6, 7, 8], False, 2, [1, 1, 1, 1, 1, 1, 1, 1, 1, 1], False), False)
sketch4.addGeometry(Part.BSplineCurve([App.Vector(-2.0034, -509.7038, 0), App.Vector(0.954, -509.7038, 0), App.Vector(7.4411, -510.2762, 0), App.Vector(13.6898, -511.9933, 0), App.Vector(19.366, -515.0461, 0), App.Vector(23.659, -519.8161, 0), App.Vector(26.1393, -526.6848, 0), App.Vector(26.1393, -531.3594, 0)], [3, 1, 1, 1, 1, 1, 3], [0, 1, 2, 3, 4, 5, 6], False, 2, [1, 1, 1, 1, 1, 1, 1, 1], False), False)
sketch4.addGeometry(Part.BSplineCurve([App.Vector(-26.187, -526.6848, 0), App.Vector(-26.187, -523.2027, 0), App.Vector(-24.5653, -517.9558, 0), App.Vector(-21.5602, -514.1398, 0), App.Vector(-17.2672, -511.7071, 0), App.Vector(-11.8772, -510.2285, 0), App.Vector(-5.5331, -509.7038, 0), App.Vector(-2.0034, -509.7038, 0)], [3, 1, 1, 1, 1, 1, 3], [0, 1, 2, 3, 4, 5, 6], False, 2, [1, 1, 1, 1, 1, 1, 1, 1], False), False)
sketch4.addGeometry(Part.BSplineCurve([App.Vector(-9.3491, -534.5075, 0), App.Vector(-7.3934, -534.5075, 0), App.Vector(-4.3407, -533.792, 0), App.Vector(-2.2896, -532.2179, 0), App.Vector(-1.2402, -529.6422, 0), App.Vector(-1.2402, -527.8296, 0)], [3, 1, 1, 1, 3], [0, 1, 2, 3, 4], False, 2, [1, 1, 1, 1, 1, 1], False), False)
sketch4.addGeometry(Part.BSplineCurve([App.Vector(-18.2689, -527.2572, 0), App.Vector(-18.2689, -529.0698, 0), App.Vector(-16.9333, -531.7886, 0), App.Vector(-14.5007, -533.5535, 0), App.Vector(-11.2571, -534.5075, 0), App.Vector(-9.3491, -534.5075, 0)], [3, 1, 1, 1, 3], [0, 1, 2, 3, 4], False, 2, [1, 1, 1, 1, 1, 1], False), False)
sketch4.addGeometry(Part.BSplineCurve([App.Vector(-3.8637, -519.8638, 0), App.Vector(-8.0135, -519.8638, 0), App.Vector(-13.6421, -520.8178, 0), App.Vector(-16.8856, -522.6303, 0), App.Vector(-18.2689, -525.4446, 0), App.Vector(-18.2689, -527.2572, 0)], [3, 1, 1, 1, 3], [0, 1, 2, 3, 4], False, 2, [1, 1, 1, 1, 1, 1], False), False)
sketch4.addGeometry(Part.BSplineCurve([App.Vector(-1.2402, -527.8296, 0), App.Vector(-1.2402, -526.7325, 0), App.Vector(-1.6218, -524.586, 0), App.Vector(-2.3373, -522.5826, 0), App.Vector(-3.2913, -520.6747, 0), App.Vector(-3.8637, -519.8638, 0)], [3, 1, 1, 1, 3], [0, 1, 2, 3, 4], False, 2, [1, 1, 1, 1, 1, 1], False), False)
sketch4.addGeometry(Part.BSplineCurve([App.Vector(-21.3694, -583.8765, 0), App.Vector(-22.4665, -583.8765, 0), App.Vector(-23.9929, -583.638, 0), App.Vector(-24.8992, -583.2087, 0), App.Vector(-25.2807, -582.684, 0), App.Vector(-25.2807, -582.3025, 0)], [3, 1, 1, 1, 3], [0, 1, 2, 3, 4], False, 2, [1, 1, 1, 1, 1, 1], False), False)
sketch4.addGeometry(Part.BSplineCurve([App.Vector(-17.3626, -582.3025, 0), App.Vector(-17.3626, -582.684, 0), App.Vector(-17.7919, -583.2564, 0), App.Vector(-18.7459, -583.6857, 0), App.Vector(-20.2723, -583.8765, 0), App.Vector(-21.3694, -583.8765, 0)], [3, 1, 1, 1, 3], [0, 1, 2, 3, 4], False, 2, [1, 1, 1, 1, 1, 1], False), False)
sketch4.addGeometry(Part.LineSegment(App.Vector(-17.3626, -582.3025, 0), App.Vector(-17.3626, -574.0504, 0)), False)
sketch4.addGeometry(Part.LineSegment(App.Vector(-17.3626, -574.0504, 0), App.Vector(24.4699, -574.0504, 0)), False)
sketch4.addGeometry(Part.BSplineCurve([App.Vector(25.6623, -569.4713, 0), App.Vector(25.6623, -570.95, 0), App.Vector(25.5669, -572.8102, 0), App.Vector(25.2808, -573.7165, 0), App.Vector(24.8038, -574.0504, 0), App.Vector(24.4699, -574.0504, 0)], [3, 1, 1, 1, 3], [0, 1, 2, 3, 4], False, 2, [1, 1, 1, 1, 1, 1], False), False)
sketch4.addGeometry(Part.BSplineCurve([App.Vector(25.1377, -564.9875, 0), App.Vector(25.3285, -565.226, 0), App.Vector(25.5192, -565.7984, 0), App.Vector(25.6146, -566.7524, 0), App.Vector(25.6623, -568.2788, 0), App.Vector(25.6623, -569.4713, 0)], [3, 1, 1, 1, 3], [0, 1, 2, 3, 4], False, 2, [1, 1, 1, 1, 1, 1], False), False)
sketch4.addGeometry(Part.LineSegment(App.Vector(25.1377, -564.9875, 0), App.Vector(18.1258, -554.1597, 0)), False)
sketch4.addGeometry(Part.BSplineCurve([App.Vector(14.2622, -552.7287, 0), App.Vector(15.2162, -552.7287, 0), App.Vector(16.4086, -552.8241, 0), App.Vector(17.2672, -553.1103, 0), App.Vector(17.8396, -553.6827, 0), App.Vector(18.1258, -554.1597, 0)], [3, 1, 1, 1, 3], [0, 1, 2, 3, 4], False, 2, [1, 1, 1, 1, 1, 1], False), False)
sketch4.addGeometry(Part.BSplineCurve([App.Vector(11.114, -555.6384, 0), App.Vector(10.6847, -554.7798, 0), App.Vector(10.4939, -553.635, 0), App.Vector(11.1617, -552.9672, 0), App.Vector(12.7835, -552.7287, 0), App.Vector(14.2622, -552.7287, 0)], [3, 1, 1, 1, 3], [0, 1, 2, 3, 4], False, 2, [1, 1, 1, 1, 1, 1], False), False)
sketch4.addGeometry(Part.LineSegment(App.Vector(11.114, -555.6384, 0), App.Vector(15.5977, -563.795, 0)), False)
sketch4.addGeometry(Part.LineSegment(App.Vector(15.5977, -563.795, 0), App.Vector(-17.3626, -563.795, 0)), False)
sketch4.addGeometry(Part.LineSegment(App.Vector(-17.3626, -563.795, 0), App.Vector(-17.3626, -554.3982, 0)), False)
sketch4.addGeometry(Part.BSplineCurve([App.Vector(-21.3694, -552.8718, 0), App.Vector(-20.2723, -552.8718, 0), App.Vector(-18.7459, -553.0626, 0), App.Vector(-17.7919, -553.4919, 0), App.Vector(-17.3626, -554.0643, 0), App.Vector(-17.3626, -554.3982, 0)], [3, 1, 1, 1, 3], [0, 1, 2, 3, 4], False, 2, [1, 1, 1, 1, 1, 1], False), False)
sketch4.addGeometry(Part.BSplineCurve([App.Vector(-25.2807, -554.3982, 0), App.Vector(-25.2807, -554.0643, 0), App.Vector(-24.8992, -553.5396, 0), App.Vector(-23.9929, -553.1103, 0), App.Vector(-22.4665, -552.8718, 0), App.Vector(-21.3694, -552.8718, 0)], [3, 1, 1, 1, 3], [0, 1, 2, 3, 4], False, 2, [1, 1, 1, 1, 1, 1], False), False)
sketch4.addGeometry(Part.LineSegment(App.Vector(-25.2807, -554.3982, 0), App.Vector(-25.2807, -582.3025, 0)), False)
sketch4.addConstraint(Sketcher.Constraint("Block", 0))
sketch4.addConstraint(Sketcher.Constraint("Block", 1))
sketch4.addConstraint(Sketcher.Constraint("Block", 3))
sketch4.addConstraint(Sketcher.Constraint("Block", 4))
sketch4.addConstraint(Sketcher.Constraint("Block", 5))
sketch4.addConstraint(Sketcher.Constraint("Block", 6))
sketch4.addConstraint(Sketcher.Constraint("Block", 7))
sketch4.addConstraint(Sketcher.Constraint("Block", 8))
sketch4.addConstraint(Sketcher.Constraint("Block", 9))
sketch4.addConstraint(Sketcher.Constraint("Block", 11))
sketch4.addConstraint(Sketcher.Constraint("Block", 12))
sketch4.addConstraint(Sketcher.Constraint("Block", 14))
sketch4.addConstraint(Sketcher.Constraint("Block", 15))
sketch4.addConstraint(Sketcher.Constraint("Block", 16))
sketch4.addConstraint(Sketcher.Constraint("Block", 17))
sketch4.addConstraint(Sketcher.Constraint("Block", 18))
sketch4.addConstraint(Sketcher.Constraint("Block", 19))
sketch4.addConstraint(Sketcher.Constraint("Block", 20))
sketch4.addConstraint(Sketcher.Constraint("Block", 21))
sketch4.addConstraint(Sketcher.Constraint("Block", 22))
sketch4.addConstraint(Sketcher.Constraint("Block", 23))
sketch4.addConstraint(Sketcher.Constraint("Block", 24))
sketch4.addConstraint(Sketcher.Constraint("Block", 25))
sketch4.addConstraint(Sketcher.Constraint("Block", 26))
sketch4.addConstraint(Sketcher.Constraint("Block", 27))
sketch4.addConstraint(Sketcher.Constraint("Block", 28))
sketch4.addConstraint(Sketcher.Constraint("Block", 29))
sketch4.addConstraint(Sketcher.Constraint("Block", 30))
sketch4.addConstraint(Sketcher.Constraint("Block", 31))
sketch4.addConstraint(Sketcher.Constraint("Block", 32))
sketch4.addConstraint(Sketcher.Constraint("Block", 33))
sketch4.addConstraint(Sketcher.Constraint("Block", 34))
sketch4.addConstraint(Sketcher.Constraint("Block", 35))
sketch4.addConstraint(Sketcher.Constraint("Block", 36))
sketch4.addConstraint(Sketcher.Constraint("Block", 37))
sketch4.addConstraint(Sketcher.Constraint("Block", 38))
sketch4.addConstraint(Sketcher.Constraint("Block", 39))
sketch4.addConstraint(Sketcher.Constraint("Block", 40))
sketch4.addConstraint(Sketcher.Constraint("Block", 41))
sketch4.addConstraint(Sketcher.Constraint("Block", 44))
sketch4.addConstraint(Sketcher.Constraint("Block", 45))
sketch4.addConstraint(Sketcher.Constraint("Block", 47))
sketch4.addConstraint(Sketcher.Constraint("Block", 48))
sketch4.addConstraint(Sketcher.Constraint("Block", 52))
sketch4.addConstraint(Sketcher.Constraint("Block", 53))
sketch4.addConstraint(Sketcher.Constraint("Coincident", 1, 1, 2, 1))
sketch4.addConstraint(Sketcher.Constraint("Coincident", 2, 2, 3, 2))
sketch4.addConstraint(Sketcher.Constraint("Coincident", 9, 1, 10, 1))
sketch4.addConstraint(Sketcher.Constraint("Coincident", 10, 2, 11, 2))
sketch4.addConstraint(Sketcher.Constraint("Coincident", 12, 1, 13, 1))
sketch4.addConstraint(Sketcher.Constraint("Coincident", 13, 2, 14, 2))
sketch4.addConstraint(Sketcher.Constraint("Coincident", 41, 1, 42, 1))
sketch4.addConstraint(Sketcher.Constraint("Coincident", 42, 2, 43, 1))
sketch4.addConstraint(Sketcher.Constraint("Coincident", 43, 2, 44, 2))
sketch4.addConstraint(Sketcher.Constraint("Coincident", 45, 1, 46, 1))
sketch4.addConstraint(Sketcher.Constraint("Coincident", 46, 2, 47, 2))
sketch4.addConstraint(Sketcher.Constraint("Coincident", 48, 1, 49, 1))
sketch4.addConstraint(Sketcher.Constraint("Coincident", 49, 2, 50, 1))
sketch4.addConstraint(Sketcher.Constraint("Coincident", 50, 2, 51, 1))
sketch4.addConstraint(Sketcher.Constraint("Coincident", 51, 2, 52, 2))
sketch4.addConstraint(Sketcher.Constraint("Coincident", 53, 1, 54, 1))
sketch4.addConstraint(Sketcher.Constraint("Coincident", 54, 2, 40, 2))
sketch4.addConstraint(Sketcher.Constraint("Vertical", 42))
sketch4.addConstraint(Sketcher.Constraint("Horizontal", 43))
sketch4.addConstraint(Sketcher.Constraint("Horizontal", 50))
sketch4.addConstraint(Sketcher.Constraint("Vertical", 51))
sketch4.addConstraint(Sketcher.Constraint("DistanceX", 50, 2, 50, 1, 32.9603))
sketch4.addConstraint(Sketcher.Constraint("DistanceY", 51, 1, 51, 2, 9.3968))
pad4 = body.newObject("PartDesign::Pad", "Pad003")
pad4.Profile = sketch4
pad4.Length = Q("0.0625 in")

doc.recompute()
